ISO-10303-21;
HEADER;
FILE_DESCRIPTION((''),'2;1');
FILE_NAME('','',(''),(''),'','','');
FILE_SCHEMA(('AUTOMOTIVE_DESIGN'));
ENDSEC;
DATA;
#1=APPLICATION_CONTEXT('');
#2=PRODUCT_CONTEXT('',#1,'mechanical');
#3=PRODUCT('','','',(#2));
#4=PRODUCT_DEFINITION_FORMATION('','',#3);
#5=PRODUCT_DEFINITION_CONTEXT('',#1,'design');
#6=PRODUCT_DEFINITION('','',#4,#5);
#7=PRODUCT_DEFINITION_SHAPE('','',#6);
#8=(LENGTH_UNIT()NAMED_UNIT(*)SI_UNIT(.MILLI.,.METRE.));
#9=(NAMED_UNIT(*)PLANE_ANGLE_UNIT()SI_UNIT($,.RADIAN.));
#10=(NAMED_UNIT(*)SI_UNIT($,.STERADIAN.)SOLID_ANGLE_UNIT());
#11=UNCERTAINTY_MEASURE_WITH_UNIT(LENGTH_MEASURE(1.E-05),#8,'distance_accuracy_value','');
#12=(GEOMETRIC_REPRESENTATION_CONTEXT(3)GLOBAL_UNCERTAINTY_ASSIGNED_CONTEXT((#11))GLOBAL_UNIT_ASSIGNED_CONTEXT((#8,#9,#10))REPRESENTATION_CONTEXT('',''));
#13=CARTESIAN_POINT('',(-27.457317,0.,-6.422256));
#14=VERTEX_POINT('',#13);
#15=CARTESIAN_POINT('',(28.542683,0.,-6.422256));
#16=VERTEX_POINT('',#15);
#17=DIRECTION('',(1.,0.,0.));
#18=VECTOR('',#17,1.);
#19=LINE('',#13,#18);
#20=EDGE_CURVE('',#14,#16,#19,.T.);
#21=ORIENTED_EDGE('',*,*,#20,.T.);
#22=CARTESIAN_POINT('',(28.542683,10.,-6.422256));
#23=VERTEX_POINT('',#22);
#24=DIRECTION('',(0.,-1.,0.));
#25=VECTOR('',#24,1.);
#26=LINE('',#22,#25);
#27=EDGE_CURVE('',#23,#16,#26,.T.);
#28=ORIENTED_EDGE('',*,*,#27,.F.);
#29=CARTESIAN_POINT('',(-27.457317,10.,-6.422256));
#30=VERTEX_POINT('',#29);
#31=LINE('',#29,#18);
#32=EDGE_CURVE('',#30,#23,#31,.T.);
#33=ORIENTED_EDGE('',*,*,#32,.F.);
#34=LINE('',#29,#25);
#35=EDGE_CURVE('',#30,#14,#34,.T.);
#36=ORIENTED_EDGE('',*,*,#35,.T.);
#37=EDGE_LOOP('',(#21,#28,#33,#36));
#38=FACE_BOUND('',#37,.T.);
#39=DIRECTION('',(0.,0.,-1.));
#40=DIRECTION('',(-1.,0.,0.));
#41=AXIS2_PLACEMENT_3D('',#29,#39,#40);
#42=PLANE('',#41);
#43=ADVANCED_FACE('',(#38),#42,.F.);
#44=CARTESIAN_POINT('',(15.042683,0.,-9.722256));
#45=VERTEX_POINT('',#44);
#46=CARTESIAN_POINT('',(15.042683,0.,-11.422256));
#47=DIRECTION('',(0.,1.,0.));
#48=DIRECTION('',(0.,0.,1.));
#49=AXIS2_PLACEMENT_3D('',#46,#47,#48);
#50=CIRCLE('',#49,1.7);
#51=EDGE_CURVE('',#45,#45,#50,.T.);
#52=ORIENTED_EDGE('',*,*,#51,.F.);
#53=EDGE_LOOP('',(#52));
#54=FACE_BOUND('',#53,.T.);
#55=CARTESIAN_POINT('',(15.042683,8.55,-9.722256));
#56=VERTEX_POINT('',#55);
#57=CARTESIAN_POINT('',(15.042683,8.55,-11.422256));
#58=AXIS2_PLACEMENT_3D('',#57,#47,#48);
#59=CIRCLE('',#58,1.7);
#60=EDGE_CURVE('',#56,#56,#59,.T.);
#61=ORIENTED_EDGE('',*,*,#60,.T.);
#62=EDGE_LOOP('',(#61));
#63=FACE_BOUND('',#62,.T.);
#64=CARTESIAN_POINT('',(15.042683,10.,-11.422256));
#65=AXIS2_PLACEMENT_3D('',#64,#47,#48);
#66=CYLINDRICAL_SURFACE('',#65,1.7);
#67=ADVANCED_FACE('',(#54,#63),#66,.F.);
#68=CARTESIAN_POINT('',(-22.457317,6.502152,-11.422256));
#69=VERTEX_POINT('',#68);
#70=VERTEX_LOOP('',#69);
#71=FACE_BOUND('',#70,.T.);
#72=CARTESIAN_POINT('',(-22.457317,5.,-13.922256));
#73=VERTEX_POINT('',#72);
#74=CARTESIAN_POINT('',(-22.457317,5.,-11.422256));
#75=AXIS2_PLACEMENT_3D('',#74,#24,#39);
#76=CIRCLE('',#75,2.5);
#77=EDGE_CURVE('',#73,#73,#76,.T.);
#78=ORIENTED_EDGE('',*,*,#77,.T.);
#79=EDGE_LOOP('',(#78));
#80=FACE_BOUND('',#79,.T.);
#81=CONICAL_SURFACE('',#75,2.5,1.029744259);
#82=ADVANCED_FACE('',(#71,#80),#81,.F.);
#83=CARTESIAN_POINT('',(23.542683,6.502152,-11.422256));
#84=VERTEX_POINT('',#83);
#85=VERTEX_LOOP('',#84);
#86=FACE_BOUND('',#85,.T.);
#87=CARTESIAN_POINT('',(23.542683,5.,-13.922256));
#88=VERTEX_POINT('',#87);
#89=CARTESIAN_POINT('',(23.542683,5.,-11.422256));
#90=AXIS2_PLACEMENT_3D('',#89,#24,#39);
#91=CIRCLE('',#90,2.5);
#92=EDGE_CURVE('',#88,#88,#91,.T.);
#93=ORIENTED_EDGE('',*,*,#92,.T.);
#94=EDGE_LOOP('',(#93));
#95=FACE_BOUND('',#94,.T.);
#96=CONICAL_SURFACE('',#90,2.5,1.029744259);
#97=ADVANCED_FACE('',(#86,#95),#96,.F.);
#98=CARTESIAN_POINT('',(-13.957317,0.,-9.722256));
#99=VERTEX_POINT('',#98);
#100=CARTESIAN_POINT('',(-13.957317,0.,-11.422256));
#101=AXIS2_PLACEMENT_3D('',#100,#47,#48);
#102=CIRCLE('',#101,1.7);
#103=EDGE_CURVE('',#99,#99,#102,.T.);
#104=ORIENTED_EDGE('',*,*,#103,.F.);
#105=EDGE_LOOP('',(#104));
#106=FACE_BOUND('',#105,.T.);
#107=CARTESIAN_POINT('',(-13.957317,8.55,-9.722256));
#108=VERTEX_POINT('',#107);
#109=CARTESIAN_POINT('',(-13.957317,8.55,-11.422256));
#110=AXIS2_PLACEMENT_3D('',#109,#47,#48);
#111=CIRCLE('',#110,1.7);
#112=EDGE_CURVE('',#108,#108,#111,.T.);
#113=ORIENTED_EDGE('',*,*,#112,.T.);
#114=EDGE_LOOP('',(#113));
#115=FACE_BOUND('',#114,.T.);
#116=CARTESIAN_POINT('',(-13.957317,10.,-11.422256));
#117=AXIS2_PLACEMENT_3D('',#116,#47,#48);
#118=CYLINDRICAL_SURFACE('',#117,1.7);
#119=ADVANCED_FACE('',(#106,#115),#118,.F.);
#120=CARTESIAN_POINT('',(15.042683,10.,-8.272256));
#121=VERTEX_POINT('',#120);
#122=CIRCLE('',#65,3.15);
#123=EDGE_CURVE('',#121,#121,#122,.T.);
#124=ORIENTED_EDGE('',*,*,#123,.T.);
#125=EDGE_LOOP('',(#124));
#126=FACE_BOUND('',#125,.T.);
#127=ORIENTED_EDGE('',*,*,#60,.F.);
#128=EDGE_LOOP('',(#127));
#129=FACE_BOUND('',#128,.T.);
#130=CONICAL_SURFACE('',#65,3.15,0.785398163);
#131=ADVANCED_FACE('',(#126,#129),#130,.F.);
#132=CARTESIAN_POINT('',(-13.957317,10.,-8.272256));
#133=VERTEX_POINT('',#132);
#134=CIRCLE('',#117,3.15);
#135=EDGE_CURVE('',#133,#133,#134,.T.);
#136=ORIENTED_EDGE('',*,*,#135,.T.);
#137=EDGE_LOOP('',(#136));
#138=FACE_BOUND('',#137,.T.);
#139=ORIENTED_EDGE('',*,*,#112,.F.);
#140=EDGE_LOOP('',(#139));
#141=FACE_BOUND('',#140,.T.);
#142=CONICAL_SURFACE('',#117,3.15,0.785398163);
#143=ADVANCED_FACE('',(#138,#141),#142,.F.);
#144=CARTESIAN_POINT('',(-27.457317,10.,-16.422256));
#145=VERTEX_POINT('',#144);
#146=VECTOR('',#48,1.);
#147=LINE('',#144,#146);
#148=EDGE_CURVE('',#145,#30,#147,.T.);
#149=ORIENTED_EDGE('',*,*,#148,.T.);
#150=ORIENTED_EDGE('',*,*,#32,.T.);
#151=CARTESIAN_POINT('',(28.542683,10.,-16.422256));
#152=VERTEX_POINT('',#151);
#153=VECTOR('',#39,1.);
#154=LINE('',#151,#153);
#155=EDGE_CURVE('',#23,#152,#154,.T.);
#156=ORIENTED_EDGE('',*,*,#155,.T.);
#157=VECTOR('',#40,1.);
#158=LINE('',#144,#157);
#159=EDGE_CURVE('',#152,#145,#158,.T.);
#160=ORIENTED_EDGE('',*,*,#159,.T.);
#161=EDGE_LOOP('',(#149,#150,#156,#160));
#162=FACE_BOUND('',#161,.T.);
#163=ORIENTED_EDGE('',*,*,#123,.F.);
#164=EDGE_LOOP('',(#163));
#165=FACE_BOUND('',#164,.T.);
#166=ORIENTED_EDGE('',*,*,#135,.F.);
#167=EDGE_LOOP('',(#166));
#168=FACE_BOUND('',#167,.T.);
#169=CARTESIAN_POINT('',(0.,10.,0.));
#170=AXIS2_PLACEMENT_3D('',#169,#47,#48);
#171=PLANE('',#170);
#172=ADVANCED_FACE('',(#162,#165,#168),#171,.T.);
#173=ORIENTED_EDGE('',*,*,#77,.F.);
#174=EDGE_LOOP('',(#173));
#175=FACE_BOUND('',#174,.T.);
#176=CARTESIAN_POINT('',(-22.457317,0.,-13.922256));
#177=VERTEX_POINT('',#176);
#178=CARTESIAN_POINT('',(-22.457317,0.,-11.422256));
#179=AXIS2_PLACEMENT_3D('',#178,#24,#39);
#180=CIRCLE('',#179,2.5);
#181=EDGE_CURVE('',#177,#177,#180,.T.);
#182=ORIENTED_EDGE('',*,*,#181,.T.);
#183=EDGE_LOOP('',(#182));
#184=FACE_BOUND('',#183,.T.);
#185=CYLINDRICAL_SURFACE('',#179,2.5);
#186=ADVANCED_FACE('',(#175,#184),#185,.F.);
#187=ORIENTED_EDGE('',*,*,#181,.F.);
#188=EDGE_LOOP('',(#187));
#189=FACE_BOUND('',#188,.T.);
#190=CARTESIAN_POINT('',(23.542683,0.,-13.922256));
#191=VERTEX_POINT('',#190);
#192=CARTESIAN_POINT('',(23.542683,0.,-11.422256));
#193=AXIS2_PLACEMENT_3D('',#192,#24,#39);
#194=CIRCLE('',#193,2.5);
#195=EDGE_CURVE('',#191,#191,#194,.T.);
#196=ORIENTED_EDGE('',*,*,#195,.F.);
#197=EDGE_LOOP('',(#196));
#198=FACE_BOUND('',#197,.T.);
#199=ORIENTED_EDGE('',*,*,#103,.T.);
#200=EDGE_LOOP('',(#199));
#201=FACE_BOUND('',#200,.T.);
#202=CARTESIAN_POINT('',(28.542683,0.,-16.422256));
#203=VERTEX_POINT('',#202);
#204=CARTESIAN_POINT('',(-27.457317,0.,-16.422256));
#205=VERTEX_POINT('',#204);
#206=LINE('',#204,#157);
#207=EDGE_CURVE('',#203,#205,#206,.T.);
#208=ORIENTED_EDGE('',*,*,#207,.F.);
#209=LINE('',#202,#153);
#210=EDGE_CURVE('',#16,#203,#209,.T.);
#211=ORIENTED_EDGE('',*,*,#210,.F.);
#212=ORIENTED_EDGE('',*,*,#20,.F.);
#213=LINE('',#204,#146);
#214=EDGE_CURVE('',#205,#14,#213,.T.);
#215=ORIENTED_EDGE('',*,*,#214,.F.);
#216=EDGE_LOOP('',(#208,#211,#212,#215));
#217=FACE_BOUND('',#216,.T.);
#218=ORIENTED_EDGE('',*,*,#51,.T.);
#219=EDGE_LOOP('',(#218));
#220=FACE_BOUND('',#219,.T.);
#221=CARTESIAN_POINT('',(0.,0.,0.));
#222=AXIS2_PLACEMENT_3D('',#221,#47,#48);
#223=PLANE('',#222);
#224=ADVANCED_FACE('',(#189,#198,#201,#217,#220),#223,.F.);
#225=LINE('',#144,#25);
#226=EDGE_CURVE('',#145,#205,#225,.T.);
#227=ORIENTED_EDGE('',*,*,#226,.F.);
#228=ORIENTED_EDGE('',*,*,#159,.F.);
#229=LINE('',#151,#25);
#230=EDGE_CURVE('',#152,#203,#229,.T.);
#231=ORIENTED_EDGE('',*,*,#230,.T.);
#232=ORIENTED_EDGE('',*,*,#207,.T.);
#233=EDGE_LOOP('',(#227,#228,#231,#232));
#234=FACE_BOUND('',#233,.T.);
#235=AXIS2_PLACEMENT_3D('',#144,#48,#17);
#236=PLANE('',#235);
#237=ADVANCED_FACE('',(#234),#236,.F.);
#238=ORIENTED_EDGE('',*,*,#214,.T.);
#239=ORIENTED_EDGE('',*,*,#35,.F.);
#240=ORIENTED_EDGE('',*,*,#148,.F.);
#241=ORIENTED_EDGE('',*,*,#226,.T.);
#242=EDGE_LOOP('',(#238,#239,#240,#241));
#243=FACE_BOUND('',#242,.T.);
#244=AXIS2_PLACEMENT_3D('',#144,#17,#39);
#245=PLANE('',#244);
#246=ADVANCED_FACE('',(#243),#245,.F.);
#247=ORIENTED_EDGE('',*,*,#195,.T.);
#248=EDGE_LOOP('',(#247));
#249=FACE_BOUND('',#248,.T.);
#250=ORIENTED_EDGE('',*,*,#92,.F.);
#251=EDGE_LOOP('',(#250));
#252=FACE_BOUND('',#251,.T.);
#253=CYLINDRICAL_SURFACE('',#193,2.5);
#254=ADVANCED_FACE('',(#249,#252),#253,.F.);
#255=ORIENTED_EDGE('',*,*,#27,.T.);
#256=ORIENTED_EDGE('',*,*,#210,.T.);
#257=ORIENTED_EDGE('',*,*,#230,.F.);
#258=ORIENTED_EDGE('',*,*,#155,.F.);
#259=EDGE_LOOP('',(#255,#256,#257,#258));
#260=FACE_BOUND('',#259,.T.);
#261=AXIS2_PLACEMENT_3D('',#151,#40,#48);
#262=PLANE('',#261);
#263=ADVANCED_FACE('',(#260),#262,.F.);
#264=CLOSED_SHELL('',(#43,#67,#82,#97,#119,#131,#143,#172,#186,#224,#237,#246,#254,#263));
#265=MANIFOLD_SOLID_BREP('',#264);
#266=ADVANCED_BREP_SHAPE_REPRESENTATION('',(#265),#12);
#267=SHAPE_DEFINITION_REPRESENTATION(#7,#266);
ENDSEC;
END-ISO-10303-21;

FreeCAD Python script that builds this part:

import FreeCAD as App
import Part
import Sketcher

V = App.Vector

doc = App.newDocument("Part")
body = doc.addObject("PartDesign::Body", "Body")

# Sketch on XZ plane
sketch1 = doc.addObject("Sketcher::SketchObject", "Sketch")
body.addObject(sketch1)
sketch1.AttachmentSupport = (doc.XZ_Plane, [""])
sketch1.MapMode = "FlatFace"
sketch1.addGeometry(Part.LineSegment(V(-27, -16, 0), V(-27, -6, 0)), False)
sketch1.addGeometry(Part.LineSegment(V(-27, -6, 0), V(29, -6, 0)), False)
sketch1.addGeometry(Part.LineSegment(V(29, -6, 0), V(29, -16, 0)), False)
sketch1.addGeometry(Part.LineSegment(V(29, -16, 0), V(-27, -16, 0)), False)
sketch1.addConstraint(Sketcher.Constraint("Coincident", 0, 2, 1, 1))
sketch1.addConstraint(Sketcher.Constraint("Coincident", 1, 2, 2, 1))
sketch1.addConstraint(Sketcher.Constraint("Coincident", 2, 2, 3, 1))
sketch1.addConstraint(Sketcher.Constraint("Coincident", 3, 2, 0, 1))
sketch1.addConstraint(Sketcher.Constraint("Vertical", 0))
sketch1.addConstraint(Sketcher.Constraint("Horizontal", 1))
sketch1.addConstraint(Sketcher.Constraint("Vertical", 2))
sketch1.addConstraint(Sketcher.Constraint("Horizontal", 3))
sketch1.addConstraint(Sketcher.Constraint("DistanceX", 1, 1, 1, 2, 56.0))
sketch1.addConstraint(Sketcher.Constraint("DistanceY", 0, 1, 0, 2, 10.0))
sketch1.addConstraint(Sketcher.Constraint("DistanceX", 0, 2, -1, 1, 27.457317))
sketch1.addConstraint(Sketcher.Constraint("DistanceY", 0, 2, -1, 1, 6.422256))
pad1 = doc.addObject("PartDesign::Pad", "Pad")
body.addObject(pad1)
pad1.Profile = sketch1
pad1.Length = 10
pad1.Reversed = True

# Sketch on XZ plane
sketch2 = doc.addObject("Sketcher::SketchObject", "Sketch001")
body.addObject(sketch2)
sketch2.AttachmentSupport = (doc.XZ_Plane, [""])
sketch2.MapMode = "FlatFace"
sketch2.AttachmentOffset = App.Placement(V(0, 0, -10), App.Rotation())
sketch2.addGeometry(Part.Circle(V(15, -11.4, 0), V(0, 0, 1), 1.7), False)
sketch2.addGeometry(Part.Circle(V(-14, -11.4, 0), V(0, 0, 1), 1.7), False)
sketch2.addConstraint(Sketcher.Constraint("Equal", 0, 1))
sketch2.addConstraint(Sketcher.Constraint("Horizontal", 0, 3, 1, 3))
sketch2.addConstraint(Sketcher.Constraint("Diameter", 0, 3.4))
sketch2.addConstraint(Sketcher.Constraint("DistanceX", 1, 3, 0, 3, 29.0))
sketch2.addConstraint(Sketcher.Constraint("DistanceX", -1, 1, 0, 3, 15.042683))
sketch2.addConstraint(Sketcher.Constraint("DistanceY", 0, 3, -1, 1, 11.422256))
doc.recompute()
hole = doc.addObject("PartDesign::Hole", "Hole")
body.addObject(hole)
hole.Profile = sketch2
hole.ThreadType = "None"
hole.Diameter = 3.4
hole.DepthType = "ThroughAll"
hole.HoleCutType = "Countersink"
hole.HoleCutDiameter = 6.3
hole.HoleCutCountersinkAngle = 90
hole.Reversed = True

# Sketch on XZ plane
sketch3 = doc.addObject("Sketcher::SketchObject", "Sketch002")
body.addObject(sketch3)
sketch3.AttachmentSupport = (doc.XZ_Plane, [""])
sketch3.MapMode = "FlatFace"
sketch3.addGeometry(Part.Circle(V(-22.5, -11.4, 0), V(0, 0, 1), 2.5), False)
sketch3.addGeometry(Part.Circle(V(23.5, -11.4, 0), V(0, 0, 1), 2.5), False)
sketch3.addConstraint(Sketcher.Constraint("Equal", 0, 1))
sketch3.addConstraint(Sketcher.Constraint("Horizontal", 0, 3, 1, 3))
sketch3.addConstraint(Sketcher.Constraint("Diameter", 0, 5.0))
sketch3.addConstraint(Sketcher.Constraint("DistanceX", 0, 3, 1, 3, 46.0))
sketch3.addConstraint(Sketcher.Constraint("DistanceX", 0, 3, -1, 1, 22.457317))
sketch3.addConstraint(Sketcher.Constraint("DistanceY", 0, 3, -1, 1, 11.422256))
doc.recompute()
hole2 = doc.addObject("PartDesign::Hole", "Hole001")
body.addObject(hole2)
hole2.Profile = sketch3
hole2.ThreadType = "None"
hole2.Diameter = 5
hole2.DepthType = "Dimension"
hole2.Depth = 5
hole2.DrillPoint = "Angled"
hole2.DrillPointAngle = 118

doc.recompute()
